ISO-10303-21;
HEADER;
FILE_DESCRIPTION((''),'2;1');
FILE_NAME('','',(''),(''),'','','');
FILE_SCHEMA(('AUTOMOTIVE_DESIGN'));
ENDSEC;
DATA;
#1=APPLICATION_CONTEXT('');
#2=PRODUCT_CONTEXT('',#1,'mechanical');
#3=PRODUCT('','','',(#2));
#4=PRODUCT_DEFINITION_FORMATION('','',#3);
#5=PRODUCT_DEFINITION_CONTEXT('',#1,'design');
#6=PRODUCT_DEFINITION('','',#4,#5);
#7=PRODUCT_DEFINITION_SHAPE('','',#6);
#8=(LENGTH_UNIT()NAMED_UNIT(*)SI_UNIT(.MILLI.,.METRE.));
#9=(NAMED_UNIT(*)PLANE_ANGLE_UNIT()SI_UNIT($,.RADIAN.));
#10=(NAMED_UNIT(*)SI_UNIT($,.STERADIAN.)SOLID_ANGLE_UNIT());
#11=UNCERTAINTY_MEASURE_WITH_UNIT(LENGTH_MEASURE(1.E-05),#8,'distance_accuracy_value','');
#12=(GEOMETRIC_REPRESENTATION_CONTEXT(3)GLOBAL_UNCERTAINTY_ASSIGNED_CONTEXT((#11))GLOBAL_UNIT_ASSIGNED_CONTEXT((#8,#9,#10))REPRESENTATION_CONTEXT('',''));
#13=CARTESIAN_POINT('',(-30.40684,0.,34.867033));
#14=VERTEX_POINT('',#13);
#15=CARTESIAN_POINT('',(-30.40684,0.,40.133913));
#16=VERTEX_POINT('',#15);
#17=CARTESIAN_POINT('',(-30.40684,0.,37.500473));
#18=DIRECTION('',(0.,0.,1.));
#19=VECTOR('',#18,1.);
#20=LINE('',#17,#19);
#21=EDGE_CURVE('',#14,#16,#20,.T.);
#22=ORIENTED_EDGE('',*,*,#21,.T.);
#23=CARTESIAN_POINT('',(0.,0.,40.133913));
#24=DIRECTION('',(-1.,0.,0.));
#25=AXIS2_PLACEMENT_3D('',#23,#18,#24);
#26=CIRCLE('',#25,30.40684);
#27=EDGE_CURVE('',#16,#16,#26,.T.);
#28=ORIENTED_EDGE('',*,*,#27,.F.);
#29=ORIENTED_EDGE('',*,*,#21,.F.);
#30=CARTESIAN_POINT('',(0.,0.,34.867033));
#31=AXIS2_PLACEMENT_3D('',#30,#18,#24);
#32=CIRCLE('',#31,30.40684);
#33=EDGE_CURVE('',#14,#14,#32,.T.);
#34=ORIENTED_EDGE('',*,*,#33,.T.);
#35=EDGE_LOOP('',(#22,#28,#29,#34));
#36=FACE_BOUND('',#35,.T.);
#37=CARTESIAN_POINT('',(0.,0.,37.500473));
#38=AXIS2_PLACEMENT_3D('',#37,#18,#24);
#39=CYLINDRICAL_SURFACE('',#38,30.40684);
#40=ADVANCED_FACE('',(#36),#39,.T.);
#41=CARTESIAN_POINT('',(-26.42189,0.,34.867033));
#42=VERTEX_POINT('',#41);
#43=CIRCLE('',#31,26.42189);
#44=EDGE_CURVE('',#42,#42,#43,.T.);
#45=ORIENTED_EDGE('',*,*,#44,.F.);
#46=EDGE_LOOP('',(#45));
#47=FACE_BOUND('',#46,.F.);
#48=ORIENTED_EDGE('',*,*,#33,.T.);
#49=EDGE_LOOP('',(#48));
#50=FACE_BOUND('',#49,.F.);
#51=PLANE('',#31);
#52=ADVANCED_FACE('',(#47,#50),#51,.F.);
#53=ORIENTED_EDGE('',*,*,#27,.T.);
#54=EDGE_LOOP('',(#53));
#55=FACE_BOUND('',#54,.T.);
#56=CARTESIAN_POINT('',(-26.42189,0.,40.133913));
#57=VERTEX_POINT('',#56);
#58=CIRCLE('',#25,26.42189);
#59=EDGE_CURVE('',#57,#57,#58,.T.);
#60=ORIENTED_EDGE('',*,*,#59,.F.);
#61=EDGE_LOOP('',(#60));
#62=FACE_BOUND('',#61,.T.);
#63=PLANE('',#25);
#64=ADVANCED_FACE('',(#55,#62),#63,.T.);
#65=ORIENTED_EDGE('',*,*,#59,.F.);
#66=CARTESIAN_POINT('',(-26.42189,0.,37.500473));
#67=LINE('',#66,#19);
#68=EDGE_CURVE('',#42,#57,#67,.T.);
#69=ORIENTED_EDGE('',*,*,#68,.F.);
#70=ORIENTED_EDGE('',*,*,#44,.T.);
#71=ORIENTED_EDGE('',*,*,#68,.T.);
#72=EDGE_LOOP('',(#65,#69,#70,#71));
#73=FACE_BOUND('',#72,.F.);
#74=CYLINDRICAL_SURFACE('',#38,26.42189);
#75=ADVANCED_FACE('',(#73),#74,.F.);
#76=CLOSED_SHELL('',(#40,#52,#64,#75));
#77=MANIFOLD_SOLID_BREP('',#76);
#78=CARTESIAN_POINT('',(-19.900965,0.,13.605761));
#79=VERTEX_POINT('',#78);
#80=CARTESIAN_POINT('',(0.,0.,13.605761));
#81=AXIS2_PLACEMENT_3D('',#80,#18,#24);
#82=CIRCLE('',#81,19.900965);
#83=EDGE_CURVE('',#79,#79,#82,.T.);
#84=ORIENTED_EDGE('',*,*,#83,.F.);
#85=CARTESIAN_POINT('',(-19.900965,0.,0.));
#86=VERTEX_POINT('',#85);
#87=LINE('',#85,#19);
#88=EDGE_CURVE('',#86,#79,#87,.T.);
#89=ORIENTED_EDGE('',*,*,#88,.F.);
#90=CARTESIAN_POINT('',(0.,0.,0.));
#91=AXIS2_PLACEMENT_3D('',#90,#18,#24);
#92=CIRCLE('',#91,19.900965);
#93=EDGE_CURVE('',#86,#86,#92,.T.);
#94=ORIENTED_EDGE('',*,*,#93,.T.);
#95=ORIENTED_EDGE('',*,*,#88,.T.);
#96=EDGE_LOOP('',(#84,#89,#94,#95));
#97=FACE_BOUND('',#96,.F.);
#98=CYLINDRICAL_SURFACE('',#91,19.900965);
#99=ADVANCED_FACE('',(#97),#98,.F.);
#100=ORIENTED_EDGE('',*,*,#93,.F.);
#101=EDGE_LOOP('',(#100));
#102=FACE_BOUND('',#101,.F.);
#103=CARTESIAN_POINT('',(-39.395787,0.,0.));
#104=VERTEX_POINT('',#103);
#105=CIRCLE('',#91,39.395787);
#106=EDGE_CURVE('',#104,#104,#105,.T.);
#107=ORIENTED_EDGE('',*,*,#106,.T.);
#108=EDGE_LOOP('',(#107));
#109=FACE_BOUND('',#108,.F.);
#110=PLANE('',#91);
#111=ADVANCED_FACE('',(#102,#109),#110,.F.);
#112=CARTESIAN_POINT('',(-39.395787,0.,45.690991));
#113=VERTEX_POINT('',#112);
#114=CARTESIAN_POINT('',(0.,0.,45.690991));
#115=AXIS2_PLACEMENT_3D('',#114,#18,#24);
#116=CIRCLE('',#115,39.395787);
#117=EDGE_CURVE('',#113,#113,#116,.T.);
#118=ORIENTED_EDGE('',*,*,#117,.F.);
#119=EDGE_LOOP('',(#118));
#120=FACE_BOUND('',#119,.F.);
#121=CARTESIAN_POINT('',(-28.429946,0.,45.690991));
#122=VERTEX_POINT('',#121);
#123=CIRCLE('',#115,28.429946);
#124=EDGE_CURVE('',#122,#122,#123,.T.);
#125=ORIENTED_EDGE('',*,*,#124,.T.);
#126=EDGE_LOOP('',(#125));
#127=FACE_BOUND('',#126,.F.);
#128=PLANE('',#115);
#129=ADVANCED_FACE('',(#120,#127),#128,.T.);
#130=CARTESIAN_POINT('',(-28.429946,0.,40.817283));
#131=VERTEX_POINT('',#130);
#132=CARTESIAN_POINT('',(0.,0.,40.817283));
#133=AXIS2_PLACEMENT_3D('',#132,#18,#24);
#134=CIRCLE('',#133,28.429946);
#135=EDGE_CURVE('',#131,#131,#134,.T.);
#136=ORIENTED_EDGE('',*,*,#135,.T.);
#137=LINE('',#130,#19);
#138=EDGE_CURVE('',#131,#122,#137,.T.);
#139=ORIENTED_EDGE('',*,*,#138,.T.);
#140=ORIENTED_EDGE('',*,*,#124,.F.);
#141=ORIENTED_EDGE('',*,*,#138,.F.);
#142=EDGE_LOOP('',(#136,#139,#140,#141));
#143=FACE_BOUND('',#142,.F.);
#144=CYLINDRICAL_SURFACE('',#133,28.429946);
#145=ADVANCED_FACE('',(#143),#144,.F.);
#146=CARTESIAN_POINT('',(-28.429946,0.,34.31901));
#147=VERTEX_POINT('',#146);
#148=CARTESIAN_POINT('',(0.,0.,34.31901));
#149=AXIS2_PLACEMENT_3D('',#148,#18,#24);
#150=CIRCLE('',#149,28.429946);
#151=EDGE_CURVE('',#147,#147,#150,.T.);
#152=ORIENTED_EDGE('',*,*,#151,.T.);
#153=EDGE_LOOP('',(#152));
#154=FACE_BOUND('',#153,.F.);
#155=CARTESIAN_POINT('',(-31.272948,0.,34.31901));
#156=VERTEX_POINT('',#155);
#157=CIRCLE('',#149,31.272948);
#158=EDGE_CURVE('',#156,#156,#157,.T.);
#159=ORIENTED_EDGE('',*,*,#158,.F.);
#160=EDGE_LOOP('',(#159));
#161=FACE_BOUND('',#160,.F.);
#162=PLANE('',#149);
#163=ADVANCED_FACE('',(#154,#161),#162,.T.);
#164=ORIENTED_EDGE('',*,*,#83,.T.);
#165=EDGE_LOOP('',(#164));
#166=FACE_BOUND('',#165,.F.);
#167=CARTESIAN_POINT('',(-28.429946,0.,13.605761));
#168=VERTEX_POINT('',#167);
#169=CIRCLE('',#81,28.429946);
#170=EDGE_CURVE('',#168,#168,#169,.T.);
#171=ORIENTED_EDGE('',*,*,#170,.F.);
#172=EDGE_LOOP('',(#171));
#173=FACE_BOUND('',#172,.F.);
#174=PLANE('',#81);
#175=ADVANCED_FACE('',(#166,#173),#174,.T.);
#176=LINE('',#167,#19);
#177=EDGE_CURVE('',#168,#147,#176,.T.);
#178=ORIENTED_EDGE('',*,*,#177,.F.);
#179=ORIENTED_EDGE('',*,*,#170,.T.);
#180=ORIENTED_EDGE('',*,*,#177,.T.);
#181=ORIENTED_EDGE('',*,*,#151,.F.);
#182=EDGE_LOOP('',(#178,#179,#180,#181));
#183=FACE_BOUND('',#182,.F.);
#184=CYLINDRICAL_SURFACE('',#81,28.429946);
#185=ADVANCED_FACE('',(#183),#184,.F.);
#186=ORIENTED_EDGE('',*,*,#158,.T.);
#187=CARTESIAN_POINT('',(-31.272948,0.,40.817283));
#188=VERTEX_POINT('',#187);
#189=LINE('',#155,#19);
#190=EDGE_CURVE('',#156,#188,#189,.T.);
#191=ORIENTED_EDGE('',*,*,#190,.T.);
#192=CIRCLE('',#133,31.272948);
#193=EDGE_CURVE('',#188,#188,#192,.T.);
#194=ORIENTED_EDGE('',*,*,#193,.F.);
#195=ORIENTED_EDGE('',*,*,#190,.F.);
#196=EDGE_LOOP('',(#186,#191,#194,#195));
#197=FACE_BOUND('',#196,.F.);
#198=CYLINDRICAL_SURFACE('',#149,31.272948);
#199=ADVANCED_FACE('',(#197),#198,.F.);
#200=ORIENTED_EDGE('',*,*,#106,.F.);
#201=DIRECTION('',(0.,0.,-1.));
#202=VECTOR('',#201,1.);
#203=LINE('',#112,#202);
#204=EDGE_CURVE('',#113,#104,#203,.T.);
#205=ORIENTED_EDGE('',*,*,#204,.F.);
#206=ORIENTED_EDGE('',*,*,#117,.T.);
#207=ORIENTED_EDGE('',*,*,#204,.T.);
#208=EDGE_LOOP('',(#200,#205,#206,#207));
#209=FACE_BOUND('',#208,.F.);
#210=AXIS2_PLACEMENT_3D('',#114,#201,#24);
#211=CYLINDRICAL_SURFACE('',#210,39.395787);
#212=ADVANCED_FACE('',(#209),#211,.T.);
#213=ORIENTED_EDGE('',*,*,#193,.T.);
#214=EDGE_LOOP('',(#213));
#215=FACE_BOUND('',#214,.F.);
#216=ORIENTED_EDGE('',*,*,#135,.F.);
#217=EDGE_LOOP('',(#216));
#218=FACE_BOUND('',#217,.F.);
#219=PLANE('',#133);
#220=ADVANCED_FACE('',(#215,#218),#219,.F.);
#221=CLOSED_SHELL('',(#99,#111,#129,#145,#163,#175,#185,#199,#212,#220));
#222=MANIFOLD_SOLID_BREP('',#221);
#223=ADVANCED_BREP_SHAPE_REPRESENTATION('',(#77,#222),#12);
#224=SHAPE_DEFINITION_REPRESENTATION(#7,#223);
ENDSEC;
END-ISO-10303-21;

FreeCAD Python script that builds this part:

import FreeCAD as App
import Part
import Sketcher

doc = App.newDocument("Part")
params = doc.addObject("Spreadsheet::Sheet", "Params")
for row, (alias, value) in enumerate([
    ("revolution_angle", "360 deg"),
], start=1):
    params.set(f"A{row}", alias)
    params.set(f"B{row}", "=" + value)
    params.setAlias(f"B{row}", alias)

body = doc.addObject("PartDesign::Body", "Body")
body.AllowCompound = True

# Sketch on XZ plane
sketch1 = doc.addObject("Sketcher::SketchObject", "Sketch")
body.addObject(sketch1)
sketch1.AttachmentSupport = (doc.XZ_Plane, [""])
sketch1.MapMode = "FlatFace"
sketch1.addGeometry(Part.LineSegment(App.Vector(-39.4, 0, 0), App.Vector(-19.9, 0, 0)), False)
sketch1.addGeometry(Part.LineSegment(App.Vector(-19.9, 0, 0), App.Vector(-19.9, 13.6, 0)), False)
sketch1.addGeometry(Part.LineSegment(App.Vector(-19.9, 13.6, 0), App.Vector(-28.4, 13.6, 0)), False)
sketch1.addGeometry(Part.LineSegment(App.Vector(-28.4, 13.6, 0), App.Vector(-28.4, 34.3, 0)), False)
sketch1.addGeometry(Part.LineSegment(App.Vector(-28.4, 34.3, 0), App.Vector(-31.3, 34.3, 0)), False)
sketch1.addGeometry(Part.LineSegment(App.Vector(-31.3, 34.3, 0), App.Vector(-31.3, 40.8, 0)), False)
sketch1.addGeometry(Part.LineSegment(App.Vector(-31.3, 40.8, 0), App.Vector(-28.4, 40.8, 0)), False)
sketch1.addGeometry(Part.LineSegment(App.Vector(-28.4, 40.8, 0), App.Vector(-28.4, 45.7, 0)), False)
sketch1.addGeometry(Part.LineSegment(App.Vector(-28.4, 45.7, 0), App.Vector(-39.4, 45.7, 0)), False)
sketch1.addGeometry(Part.LineSegment(App.Vector(-39.4, 45.7, 0), App.Vector(-39.4, 0, 0)), False)
sketch1.addGeometry(Part.LineSegment(App.Vector(-30.4, 40.1, 0), App.Vector(-30.4, 34.9, 0)), False)
sketch1.addGeometry(Part.LineSegment(App.Vector(-30.4, 34.9, 0), App.Vector(-26.4, 34.9, 0)), False)
sketch1.addGeometry(Part.LineSegment(App.Vector(-26.4, 34.9, 0), App.Vector(-26.4, 40.1, 0)), False)
sketch1.addGeometry(Part.LineSegment(App.Vector(-26.4, 40.1, 0), App.Vector(-30.4, 40.1, 0)), False)
sketch1.addConstraint(Sketcher.Constraint("Coincident", 0, 2, 1, 1))
sketch1.addConstraint(Sketcher.Constraint("Coincident", 1, 2, 2, 1))
sketch1.addConstraint(Sketcher.Constraint("Coincident", 2, 2, 3, 1))
sketch1.addConstraint(Sketcher.Constraint("Coincident", 3, 2, 4, 1))
sketch1.addConstraint(Sketcher.Constraint("Coincident", 4, 2, 5, 1))
sketch1.addConstraint(Sketcher.Constraint("Coincident", 5, 2, 6, 1))
sketch1.addConstraint(Sketcher.Constraint("Coincident", 6, 2, 7, 1))
sketch1.addConstraint(Sketcher.Constraint("Coincident", 7, 2, 8, 1))
sketch1.addConstraint(Sketcher.Constraint("Coincident", 8, 2, 9, 1))
sketch1.addConstraint(Sketcher.Constraint("Coincident", 9, 2, 0, 1))
sketch1.addConstraint(Sketcher.Constraint("Coincident", 10, 2, 11, 1))
sketch1.addConstraint(Sketcher.Constraint("Coincident", 11, 2, 12, 1))
sketch1.addConstraint(Sketcher.Constraint("Coincident", 12, 2, 13, 1))
sketch1.addConstraint(Sketcher.Constraint("Coincident", 13, 2, 10, 1))
sketch1.addConstraint(Sketcher.Constraint("Horizontal", 0))
sketch1.addConstraint(Sketcher.Constraint("Vertical", 1))
sketch1.addConstraint(Sketcher.Constraint("Horizontal", 2))
sketch1.addConstraint(Sketcher.Constraint("Vertical", 3))
sketch1.addConstraint(Sketcher.Constraint("Horizontal", 4))
sketch1.addConstraint(Sketcher.Constraint("Vertical", 5))
sketch1.addConstraint(Sketcher.Constraint("Horizontal", 6))
sketch1.addConstraint(Sketcher.Constraint("Vertical", 7))
sketch1.addConstraint(Sketcher.Constraint("Horizontal", 8))
sketch1.addConstraint(Sketcher.Constraint("Vertical", 9))
sketch1.addConstraint(Sketcher.Constraint("Vertical", 10))
sketch1.addConstraint(Sketcher.Constraint("Horizontal", 11))
sketch1.addConstraint(Sketcher.Constraint("Vertical", 12))
sketch1.addConstraint(Sketcher.Constraint("Horizontal", 13))
sketch1.addConstraint(Sketcher.Constraint("PointOnObject", 0, 2, -1))
sketch1.addConstraint(Sketcher.Constraint("Vertical", 3, 2, 6, 2))
sketch1.addConstraint(Sketcher.Constraint("DistanceX", 4, 2, 4, 1, 2.843002))
sketch1.addConstraint(Sketcher.Constraint("DistanceX", 0, 1, 0, 2, 19.494822))
sketch1.addConstraint(Sketcher.Constraint("DistanceX", 2, 2, 2, 1, 8.528981))
sketch1.addConstraint(Sketcher.Constraint("DistanceX", 11, 1, 11, 2, 3.98495))
sketch1.addConstraint(Sketcher.Constraint("DistanceY", 1, 1, 1, 2, 13.605761))
sketch1.addConstraint(Sketcher.Constraint("DistanceY", 3, 1, 3, 2, 20.713249))
sketch1.addConstraint(Sketcher.Constraint("DistanceY", 9, 2, 9, 1, 45.690991))
sketch1.addConstraint(Sketcher.Constraint("DistanceY", 10, 2, 10, 1, 5.266879))
sketch1.addConstraint(Sketcher.Constraint("DistanceY", 5, 1, 5, 2, 6.498273))
sketch1.addConstraint(Sketcher.Constraint("DistanceX", 10, 2, -1, 1, 30.40684))
sketch1.addConstraint(Sketcher.Constraint("DistanceX", 4, 2, 10, 2, 0.866108))
sketch1.addConstraint(Sketcher.Constraint("DistanceY", 10, 2, 5, 2, 5.95025))
revolution = doc.addObject("PartDesign::Revolution", "Revolution")
body.addObject(revolution)
revolution.Profile = sketch1
revolution.ReferenceAxis = (sketch1, ["V_Axis"])
revolution.setExpression("Angle", "Params.revolution_angle")

doc.recompute()
